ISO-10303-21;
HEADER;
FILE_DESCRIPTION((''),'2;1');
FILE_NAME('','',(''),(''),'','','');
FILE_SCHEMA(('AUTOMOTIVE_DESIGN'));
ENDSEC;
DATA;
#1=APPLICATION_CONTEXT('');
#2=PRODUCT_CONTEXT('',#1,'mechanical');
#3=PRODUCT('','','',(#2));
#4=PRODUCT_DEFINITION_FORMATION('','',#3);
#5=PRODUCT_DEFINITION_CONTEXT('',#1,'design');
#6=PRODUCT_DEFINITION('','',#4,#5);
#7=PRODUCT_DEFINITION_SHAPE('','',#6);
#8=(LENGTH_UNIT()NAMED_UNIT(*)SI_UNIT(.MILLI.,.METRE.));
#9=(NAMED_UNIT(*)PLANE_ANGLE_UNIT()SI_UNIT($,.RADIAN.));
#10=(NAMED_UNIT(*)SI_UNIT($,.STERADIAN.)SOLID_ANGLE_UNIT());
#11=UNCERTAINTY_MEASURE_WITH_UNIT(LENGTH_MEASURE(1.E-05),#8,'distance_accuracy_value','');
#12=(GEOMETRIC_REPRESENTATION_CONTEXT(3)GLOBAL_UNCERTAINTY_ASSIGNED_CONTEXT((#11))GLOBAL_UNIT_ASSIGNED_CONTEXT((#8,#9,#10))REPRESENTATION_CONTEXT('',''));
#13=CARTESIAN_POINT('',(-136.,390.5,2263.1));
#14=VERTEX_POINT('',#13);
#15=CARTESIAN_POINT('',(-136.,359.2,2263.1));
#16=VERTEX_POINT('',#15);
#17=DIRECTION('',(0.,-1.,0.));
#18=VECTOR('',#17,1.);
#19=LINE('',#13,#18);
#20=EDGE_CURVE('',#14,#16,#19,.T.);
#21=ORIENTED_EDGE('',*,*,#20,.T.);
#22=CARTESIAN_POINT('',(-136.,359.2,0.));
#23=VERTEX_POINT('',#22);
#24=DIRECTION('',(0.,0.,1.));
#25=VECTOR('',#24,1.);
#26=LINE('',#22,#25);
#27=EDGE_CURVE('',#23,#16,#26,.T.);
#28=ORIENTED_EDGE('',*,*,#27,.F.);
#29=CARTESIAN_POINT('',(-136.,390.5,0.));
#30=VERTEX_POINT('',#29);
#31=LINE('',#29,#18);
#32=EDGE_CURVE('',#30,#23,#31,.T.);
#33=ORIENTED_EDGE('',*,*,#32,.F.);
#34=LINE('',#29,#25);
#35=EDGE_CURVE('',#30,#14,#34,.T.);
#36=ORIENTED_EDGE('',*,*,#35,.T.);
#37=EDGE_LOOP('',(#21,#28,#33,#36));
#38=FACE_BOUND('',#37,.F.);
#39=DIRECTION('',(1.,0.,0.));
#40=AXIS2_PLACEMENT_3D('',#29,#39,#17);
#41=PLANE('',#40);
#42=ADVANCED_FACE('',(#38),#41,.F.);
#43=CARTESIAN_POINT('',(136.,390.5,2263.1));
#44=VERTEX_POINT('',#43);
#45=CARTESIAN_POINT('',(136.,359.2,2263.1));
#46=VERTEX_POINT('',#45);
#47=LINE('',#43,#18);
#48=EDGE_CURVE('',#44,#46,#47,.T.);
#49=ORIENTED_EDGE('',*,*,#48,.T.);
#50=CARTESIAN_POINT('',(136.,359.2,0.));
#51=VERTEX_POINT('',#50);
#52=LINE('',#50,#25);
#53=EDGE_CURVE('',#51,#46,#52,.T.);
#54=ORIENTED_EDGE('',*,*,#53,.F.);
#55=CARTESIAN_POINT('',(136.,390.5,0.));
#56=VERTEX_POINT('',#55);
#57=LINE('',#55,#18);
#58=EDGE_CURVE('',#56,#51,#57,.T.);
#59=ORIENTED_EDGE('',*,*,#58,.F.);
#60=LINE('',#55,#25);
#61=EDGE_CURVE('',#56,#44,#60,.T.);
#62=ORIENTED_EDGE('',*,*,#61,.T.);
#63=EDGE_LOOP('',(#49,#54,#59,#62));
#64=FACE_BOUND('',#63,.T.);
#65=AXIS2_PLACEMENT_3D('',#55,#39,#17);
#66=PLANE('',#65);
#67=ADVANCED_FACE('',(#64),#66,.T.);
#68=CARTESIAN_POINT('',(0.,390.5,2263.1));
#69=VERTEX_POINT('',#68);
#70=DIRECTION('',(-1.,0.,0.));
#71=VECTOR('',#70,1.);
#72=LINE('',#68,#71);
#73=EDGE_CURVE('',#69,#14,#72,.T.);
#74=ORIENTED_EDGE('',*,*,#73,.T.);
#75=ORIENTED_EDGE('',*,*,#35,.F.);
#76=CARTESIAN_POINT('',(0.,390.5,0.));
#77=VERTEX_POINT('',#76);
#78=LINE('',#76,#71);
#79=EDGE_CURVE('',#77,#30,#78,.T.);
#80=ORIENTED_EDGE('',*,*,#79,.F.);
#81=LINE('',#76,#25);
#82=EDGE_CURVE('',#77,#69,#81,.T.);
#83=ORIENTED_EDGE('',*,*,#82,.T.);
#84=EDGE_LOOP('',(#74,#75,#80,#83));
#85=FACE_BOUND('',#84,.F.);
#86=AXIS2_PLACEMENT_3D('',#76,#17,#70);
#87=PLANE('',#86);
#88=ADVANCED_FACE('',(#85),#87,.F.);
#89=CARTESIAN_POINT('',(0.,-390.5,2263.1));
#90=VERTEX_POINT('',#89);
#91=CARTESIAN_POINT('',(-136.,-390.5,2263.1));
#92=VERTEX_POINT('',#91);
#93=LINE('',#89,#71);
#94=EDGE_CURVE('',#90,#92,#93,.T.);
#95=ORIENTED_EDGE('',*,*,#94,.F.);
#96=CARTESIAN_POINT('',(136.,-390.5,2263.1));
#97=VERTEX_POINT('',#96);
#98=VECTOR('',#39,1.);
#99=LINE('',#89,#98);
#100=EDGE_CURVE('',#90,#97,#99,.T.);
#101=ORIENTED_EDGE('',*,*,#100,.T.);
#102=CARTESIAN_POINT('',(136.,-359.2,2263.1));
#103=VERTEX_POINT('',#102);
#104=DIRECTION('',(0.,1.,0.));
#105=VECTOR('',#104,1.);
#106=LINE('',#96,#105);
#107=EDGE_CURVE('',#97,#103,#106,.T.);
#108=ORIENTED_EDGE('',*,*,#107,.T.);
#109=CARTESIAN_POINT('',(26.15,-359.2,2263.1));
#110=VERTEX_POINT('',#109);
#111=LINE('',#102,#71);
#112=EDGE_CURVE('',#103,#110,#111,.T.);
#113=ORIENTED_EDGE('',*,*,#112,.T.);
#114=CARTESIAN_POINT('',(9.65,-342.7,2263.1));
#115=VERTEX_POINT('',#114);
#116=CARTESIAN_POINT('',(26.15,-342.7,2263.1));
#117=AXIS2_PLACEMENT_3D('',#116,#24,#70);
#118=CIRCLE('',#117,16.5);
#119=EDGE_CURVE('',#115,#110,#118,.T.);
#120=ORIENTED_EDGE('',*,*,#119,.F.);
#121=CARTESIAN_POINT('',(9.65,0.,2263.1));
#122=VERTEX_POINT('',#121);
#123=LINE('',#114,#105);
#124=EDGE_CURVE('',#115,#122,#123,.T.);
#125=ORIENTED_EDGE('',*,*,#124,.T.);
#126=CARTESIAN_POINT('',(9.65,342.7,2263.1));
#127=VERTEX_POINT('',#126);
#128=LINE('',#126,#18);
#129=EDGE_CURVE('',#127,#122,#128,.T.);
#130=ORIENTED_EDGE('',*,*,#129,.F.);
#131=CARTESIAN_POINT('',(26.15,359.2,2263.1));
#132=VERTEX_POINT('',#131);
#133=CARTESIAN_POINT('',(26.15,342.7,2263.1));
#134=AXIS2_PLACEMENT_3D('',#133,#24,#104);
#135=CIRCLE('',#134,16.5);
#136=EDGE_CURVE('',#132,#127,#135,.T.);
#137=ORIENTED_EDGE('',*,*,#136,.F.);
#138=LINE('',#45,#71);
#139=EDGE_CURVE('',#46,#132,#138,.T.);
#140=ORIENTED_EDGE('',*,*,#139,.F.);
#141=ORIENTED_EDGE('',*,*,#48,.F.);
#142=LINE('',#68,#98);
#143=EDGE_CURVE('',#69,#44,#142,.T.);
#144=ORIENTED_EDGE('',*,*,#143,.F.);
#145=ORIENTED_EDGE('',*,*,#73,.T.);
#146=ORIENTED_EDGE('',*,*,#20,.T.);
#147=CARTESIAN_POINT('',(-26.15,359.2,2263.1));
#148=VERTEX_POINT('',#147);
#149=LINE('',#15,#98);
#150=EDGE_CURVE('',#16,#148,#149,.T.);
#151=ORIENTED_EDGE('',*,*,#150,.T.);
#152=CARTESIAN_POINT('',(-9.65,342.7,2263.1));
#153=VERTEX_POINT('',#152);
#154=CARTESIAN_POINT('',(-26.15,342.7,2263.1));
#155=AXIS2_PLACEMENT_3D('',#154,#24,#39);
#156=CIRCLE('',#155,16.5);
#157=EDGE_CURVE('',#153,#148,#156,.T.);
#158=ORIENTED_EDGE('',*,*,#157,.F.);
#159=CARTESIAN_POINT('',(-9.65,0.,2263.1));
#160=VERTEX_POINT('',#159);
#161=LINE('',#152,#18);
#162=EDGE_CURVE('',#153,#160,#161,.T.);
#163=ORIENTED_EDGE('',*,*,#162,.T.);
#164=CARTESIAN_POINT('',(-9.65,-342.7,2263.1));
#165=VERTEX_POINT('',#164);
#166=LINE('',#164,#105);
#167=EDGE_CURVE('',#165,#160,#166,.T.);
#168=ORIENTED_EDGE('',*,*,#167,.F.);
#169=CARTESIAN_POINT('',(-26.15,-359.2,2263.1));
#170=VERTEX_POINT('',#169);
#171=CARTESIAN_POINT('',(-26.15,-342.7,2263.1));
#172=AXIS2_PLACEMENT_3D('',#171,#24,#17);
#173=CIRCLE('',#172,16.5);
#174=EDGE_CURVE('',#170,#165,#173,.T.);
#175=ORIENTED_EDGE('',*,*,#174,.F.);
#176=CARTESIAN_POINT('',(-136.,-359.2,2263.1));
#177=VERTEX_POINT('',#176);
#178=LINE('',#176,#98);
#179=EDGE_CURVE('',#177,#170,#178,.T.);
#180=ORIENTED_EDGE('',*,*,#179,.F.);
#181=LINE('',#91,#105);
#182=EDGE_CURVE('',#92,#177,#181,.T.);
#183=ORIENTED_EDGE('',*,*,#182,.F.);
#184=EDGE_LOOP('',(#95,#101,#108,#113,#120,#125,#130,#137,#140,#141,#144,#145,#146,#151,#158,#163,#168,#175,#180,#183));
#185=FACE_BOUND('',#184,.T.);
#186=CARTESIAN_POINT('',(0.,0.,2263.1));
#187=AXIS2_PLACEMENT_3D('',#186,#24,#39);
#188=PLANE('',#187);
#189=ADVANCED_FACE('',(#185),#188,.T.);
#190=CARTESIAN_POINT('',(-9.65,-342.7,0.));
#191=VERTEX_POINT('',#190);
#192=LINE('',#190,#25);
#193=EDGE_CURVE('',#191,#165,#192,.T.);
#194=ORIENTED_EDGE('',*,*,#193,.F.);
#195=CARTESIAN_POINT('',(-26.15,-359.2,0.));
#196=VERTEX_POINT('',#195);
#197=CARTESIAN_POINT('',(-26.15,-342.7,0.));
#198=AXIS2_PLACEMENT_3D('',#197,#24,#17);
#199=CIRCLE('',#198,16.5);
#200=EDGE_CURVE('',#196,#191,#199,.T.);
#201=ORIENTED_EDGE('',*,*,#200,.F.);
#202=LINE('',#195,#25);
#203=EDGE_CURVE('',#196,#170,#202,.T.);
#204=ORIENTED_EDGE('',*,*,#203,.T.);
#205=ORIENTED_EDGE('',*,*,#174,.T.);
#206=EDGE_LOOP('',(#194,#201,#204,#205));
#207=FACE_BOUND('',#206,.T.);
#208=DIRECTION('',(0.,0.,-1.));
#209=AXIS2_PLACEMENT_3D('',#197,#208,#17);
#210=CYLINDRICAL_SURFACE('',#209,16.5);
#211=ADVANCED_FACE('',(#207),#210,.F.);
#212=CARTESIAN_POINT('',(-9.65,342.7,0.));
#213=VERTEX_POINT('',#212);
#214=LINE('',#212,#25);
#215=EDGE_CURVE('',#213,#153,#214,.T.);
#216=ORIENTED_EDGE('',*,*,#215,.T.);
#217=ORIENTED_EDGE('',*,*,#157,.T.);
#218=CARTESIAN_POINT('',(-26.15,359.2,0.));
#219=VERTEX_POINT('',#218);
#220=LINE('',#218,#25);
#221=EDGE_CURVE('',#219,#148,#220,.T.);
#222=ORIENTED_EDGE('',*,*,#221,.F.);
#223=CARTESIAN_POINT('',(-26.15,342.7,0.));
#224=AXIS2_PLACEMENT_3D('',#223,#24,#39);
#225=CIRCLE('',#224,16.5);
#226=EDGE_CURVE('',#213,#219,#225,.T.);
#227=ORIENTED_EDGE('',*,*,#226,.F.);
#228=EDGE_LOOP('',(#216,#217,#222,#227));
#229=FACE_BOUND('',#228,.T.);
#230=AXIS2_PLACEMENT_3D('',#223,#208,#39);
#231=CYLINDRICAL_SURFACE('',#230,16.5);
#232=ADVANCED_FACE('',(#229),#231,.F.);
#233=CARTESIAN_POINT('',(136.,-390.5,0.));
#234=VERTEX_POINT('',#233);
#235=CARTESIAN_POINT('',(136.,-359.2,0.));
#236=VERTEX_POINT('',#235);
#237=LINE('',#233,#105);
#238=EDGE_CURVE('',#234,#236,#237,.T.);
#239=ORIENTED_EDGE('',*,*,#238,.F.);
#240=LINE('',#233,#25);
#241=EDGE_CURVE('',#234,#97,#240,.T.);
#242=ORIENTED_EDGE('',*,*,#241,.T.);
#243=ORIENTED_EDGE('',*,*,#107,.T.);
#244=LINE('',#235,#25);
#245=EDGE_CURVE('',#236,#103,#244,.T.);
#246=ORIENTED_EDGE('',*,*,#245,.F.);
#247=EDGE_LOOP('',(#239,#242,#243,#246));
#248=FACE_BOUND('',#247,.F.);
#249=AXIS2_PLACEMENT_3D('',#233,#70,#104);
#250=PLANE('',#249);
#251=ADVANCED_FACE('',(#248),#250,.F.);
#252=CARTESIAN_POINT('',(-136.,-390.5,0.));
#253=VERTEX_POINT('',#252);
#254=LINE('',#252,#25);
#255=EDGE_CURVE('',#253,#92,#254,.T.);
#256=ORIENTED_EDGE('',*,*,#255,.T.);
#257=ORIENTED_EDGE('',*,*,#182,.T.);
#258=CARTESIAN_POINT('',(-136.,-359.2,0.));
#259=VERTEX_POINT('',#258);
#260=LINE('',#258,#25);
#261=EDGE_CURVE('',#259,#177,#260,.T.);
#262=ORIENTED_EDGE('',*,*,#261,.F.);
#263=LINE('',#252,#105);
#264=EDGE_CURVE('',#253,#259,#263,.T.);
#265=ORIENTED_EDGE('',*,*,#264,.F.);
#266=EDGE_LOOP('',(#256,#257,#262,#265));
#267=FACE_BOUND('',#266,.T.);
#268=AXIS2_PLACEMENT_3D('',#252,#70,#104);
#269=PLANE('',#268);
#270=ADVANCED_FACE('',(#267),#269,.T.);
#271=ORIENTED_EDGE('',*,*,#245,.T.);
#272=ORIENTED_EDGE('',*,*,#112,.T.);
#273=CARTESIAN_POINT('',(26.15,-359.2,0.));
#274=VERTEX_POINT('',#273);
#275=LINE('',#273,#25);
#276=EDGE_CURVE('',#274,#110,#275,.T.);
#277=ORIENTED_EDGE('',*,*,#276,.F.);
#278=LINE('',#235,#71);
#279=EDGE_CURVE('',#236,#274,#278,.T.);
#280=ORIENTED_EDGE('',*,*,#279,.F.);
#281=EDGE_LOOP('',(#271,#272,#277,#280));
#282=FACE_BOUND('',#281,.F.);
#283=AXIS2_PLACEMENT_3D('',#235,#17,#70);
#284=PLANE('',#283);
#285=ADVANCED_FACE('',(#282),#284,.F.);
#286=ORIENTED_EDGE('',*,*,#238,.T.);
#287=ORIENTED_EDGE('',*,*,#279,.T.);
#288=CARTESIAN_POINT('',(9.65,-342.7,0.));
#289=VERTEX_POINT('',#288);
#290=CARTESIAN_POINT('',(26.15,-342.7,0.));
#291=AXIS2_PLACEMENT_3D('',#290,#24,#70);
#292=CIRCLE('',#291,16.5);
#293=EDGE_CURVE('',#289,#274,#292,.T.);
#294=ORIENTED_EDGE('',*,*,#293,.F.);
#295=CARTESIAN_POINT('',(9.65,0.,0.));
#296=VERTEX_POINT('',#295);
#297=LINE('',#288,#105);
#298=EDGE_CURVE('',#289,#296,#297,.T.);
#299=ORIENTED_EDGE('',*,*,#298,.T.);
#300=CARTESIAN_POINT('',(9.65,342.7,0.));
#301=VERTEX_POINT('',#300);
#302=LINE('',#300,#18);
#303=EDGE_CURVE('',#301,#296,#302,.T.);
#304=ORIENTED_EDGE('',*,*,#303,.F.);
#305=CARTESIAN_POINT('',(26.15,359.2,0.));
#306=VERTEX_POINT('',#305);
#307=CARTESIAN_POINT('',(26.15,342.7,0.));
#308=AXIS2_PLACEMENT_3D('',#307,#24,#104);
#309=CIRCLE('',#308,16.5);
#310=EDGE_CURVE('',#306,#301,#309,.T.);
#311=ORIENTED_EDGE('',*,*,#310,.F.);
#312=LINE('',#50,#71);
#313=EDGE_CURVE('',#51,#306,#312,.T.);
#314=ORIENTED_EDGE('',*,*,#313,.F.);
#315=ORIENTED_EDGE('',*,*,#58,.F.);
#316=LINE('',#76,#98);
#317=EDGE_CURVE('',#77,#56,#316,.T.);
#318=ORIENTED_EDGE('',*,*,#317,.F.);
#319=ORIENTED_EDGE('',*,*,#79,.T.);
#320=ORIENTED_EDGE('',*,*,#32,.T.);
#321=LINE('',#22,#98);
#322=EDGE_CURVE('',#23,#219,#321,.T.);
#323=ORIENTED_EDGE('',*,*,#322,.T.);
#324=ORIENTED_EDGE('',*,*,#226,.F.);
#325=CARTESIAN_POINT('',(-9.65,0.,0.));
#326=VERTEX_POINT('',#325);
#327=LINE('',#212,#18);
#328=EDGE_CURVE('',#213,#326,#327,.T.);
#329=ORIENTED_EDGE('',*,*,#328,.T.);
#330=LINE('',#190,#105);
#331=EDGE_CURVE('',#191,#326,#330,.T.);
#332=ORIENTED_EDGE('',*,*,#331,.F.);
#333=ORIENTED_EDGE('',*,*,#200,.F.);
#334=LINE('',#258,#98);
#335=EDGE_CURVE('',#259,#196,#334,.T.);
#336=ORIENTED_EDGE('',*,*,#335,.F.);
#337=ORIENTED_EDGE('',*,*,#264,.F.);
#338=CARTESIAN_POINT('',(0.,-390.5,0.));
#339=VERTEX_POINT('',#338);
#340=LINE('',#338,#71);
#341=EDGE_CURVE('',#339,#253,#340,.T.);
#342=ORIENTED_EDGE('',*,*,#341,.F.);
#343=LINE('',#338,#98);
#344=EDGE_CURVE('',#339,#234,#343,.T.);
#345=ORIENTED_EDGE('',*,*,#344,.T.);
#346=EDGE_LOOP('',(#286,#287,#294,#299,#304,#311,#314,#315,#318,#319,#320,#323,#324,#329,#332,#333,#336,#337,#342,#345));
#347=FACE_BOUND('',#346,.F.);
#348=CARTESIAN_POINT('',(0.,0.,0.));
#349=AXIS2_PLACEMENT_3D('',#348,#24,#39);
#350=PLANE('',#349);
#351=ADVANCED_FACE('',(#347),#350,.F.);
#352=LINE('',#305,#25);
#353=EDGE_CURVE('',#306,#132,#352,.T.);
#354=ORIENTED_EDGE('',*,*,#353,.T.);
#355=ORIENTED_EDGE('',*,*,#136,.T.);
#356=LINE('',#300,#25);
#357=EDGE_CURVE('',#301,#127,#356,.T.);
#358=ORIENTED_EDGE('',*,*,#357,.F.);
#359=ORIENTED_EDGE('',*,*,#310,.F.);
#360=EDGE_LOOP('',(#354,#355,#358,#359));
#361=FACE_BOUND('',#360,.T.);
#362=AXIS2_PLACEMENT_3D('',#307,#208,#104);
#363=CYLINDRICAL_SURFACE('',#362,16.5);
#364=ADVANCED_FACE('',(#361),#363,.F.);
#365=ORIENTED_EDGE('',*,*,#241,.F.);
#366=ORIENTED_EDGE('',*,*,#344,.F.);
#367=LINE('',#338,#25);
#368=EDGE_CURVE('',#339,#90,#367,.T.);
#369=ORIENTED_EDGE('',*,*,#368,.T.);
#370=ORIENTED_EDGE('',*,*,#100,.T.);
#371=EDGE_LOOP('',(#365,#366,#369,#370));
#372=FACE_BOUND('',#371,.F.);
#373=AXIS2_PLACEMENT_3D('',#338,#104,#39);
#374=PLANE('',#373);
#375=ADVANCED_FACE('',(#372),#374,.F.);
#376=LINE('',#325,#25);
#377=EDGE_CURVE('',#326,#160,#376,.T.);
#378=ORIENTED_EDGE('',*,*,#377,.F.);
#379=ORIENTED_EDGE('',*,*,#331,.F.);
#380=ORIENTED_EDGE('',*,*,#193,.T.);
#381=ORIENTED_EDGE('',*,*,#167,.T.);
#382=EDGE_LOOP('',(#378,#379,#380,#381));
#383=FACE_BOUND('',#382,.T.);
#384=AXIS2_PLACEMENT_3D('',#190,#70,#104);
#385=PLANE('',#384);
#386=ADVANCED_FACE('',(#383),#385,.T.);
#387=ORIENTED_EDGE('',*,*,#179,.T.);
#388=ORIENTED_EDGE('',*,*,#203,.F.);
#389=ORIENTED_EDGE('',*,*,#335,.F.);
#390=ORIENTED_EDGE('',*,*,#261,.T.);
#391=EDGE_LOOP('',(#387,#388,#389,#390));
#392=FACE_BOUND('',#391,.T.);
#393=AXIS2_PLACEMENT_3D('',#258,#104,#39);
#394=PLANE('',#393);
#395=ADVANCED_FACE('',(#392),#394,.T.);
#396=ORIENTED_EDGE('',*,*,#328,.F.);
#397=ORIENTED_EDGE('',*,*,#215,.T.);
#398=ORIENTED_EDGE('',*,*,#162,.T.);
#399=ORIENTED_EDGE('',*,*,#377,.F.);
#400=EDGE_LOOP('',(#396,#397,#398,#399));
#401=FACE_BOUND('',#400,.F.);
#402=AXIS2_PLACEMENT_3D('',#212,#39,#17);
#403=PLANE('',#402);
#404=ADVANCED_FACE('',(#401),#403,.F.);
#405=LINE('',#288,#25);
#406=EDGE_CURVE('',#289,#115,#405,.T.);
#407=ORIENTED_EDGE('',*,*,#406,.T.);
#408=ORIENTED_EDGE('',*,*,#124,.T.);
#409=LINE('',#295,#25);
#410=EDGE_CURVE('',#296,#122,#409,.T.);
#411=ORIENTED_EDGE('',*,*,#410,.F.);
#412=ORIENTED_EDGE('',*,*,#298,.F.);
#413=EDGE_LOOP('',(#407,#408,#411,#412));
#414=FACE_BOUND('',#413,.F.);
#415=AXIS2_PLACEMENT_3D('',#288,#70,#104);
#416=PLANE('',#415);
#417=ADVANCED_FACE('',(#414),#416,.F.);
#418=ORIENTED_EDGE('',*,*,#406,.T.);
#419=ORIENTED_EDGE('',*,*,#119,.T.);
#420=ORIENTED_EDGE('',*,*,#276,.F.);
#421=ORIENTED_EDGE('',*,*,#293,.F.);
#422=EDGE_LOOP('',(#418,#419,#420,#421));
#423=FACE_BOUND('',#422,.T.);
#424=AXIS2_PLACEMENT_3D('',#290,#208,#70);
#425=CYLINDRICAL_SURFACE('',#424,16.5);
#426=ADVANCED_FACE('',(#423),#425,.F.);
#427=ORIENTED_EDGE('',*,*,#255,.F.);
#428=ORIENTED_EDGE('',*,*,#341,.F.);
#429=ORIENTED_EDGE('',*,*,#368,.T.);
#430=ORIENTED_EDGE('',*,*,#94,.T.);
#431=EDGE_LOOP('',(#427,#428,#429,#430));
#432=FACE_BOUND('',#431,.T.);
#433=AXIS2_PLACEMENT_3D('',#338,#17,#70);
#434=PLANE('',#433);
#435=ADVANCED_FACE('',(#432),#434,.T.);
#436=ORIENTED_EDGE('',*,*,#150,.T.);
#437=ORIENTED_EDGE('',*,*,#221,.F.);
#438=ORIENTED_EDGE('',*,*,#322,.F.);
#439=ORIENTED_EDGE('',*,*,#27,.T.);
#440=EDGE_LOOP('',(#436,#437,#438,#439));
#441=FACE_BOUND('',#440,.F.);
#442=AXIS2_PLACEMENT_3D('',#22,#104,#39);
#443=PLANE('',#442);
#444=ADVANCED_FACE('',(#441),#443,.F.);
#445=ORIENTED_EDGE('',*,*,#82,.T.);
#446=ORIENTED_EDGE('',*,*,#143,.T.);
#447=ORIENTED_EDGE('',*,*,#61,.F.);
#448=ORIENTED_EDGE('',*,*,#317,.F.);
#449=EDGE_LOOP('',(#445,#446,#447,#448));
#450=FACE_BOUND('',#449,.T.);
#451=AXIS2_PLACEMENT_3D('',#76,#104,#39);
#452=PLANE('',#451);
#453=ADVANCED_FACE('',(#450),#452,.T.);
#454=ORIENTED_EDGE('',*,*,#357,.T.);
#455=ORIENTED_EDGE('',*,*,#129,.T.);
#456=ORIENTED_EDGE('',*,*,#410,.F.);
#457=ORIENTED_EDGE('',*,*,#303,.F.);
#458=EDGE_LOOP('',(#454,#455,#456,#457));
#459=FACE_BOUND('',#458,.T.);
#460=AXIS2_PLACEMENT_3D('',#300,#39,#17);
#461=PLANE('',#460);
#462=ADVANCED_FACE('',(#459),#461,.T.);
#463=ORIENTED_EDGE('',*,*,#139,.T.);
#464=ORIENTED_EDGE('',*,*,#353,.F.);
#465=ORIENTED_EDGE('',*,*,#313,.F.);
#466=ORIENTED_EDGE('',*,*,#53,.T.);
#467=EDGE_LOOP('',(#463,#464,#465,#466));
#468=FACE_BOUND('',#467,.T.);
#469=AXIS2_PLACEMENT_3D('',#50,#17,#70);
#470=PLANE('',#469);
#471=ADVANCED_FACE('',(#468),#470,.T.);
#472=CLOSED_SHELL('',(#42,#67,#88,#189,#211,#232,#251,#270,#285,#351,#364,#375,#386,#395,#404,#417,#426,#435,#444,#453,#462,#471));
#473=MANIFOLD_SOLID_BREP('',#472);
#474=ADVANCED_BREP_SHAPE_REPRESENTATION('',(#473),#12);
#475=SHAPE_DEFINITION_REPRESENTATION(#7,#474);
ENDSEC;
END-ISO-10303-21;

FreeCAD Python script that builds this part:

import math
import FreeCAD as App
import Part
import Sketcher
Q = App.Units.Quantity

doc = App.newDocument("Part")
body = doc.addObject("PartDesign::Body", "Body")

# Sketch on XY plane
sketch1 = body.newObject("Sketcher::SketchObject", "Sketch")
sketch1.AttachmentSupport = (doc.getObject("XY_Plane"), [""])
sketch1.MapMode = "FlatFace"
sketch1.addGeometry([
    Part.LineSegment(App.Vector(-136, -359, 0), App.Vector(-136, -390, 0)),  # 0
    Part.LineSegment(App.Vector(-136, -390, 0), App.Vector(136, -390, 0)),  # 1
    Part.LineSegment(App.Vector(136, -390, 0), App.Vector(136, -359, 0)),  # 2
    Part.LineSegment(App.Vector(136, -359, 0), App.Vector(26, -359, 0)),  # 3
    Part.ArcOfCircle(Part.Circle(App.Vector(26, -343, 0), App.Vector(0, 0, 1), 16), math.radians(180), math.radians(270)),  # 4
    Part.LineSegment(App.Vector(10, -343, 0), App.Vector(10, 343, 0)),  # 5
    Part.ArcOfCircle(Part.Circle(App.Vector(26, 343, 0), App.Vector(0, 0, 1), 16), math.radians(90), math.radians(180)),  # 6
    Part.LineSegment(App.Vector(26, 359, 0), App.Vector(136, 359, 0)),  # 7
    Part.LineSegment(App.Vector(136, 359, 0), App.Vector(136, 390, 0)),  # 8
    Part.LineSegment(App.Vector(136, 390, 0), App.Vector(-136, 390, 0)),  # 9
    Part.LineSegment(App.Vector(-136, 390, 0), App.Vector(-136, 359, 0)),  # 10
    Part.LineSegment(App.Vector(-136, 359, 0), App.Vector(-26, 359, 0)),  # 11
    Part.ArcOfCircle(Part.Circle(App.Vector(-26, 343, 0), App.Vector(0, 0, 1), 16), math.radians(0), math.radians(90)),  # 12
    Part.LineSegment(App.Vector(-10, 343, 0), App.Vector(-10, -343, 0)),  # 13
    Part.ArcOfCircle(Part.Circle(App.Vector(-26, -343, 0), App.Vector(0, 0, 1), 16), math.radians(-90), math.radians(0)),  # 14
    Part.LineSegment(App.Vector(-26, -359, 0), App.Vector(-136, -359, 0)),  # 15
], False)
sketch1.addConstraint([
    Sketcher.Constraint("Coincident", 0, 2, 1, 1),
    Sketcher.Constraint("Coincident", 1, 2, 2, 1),
    Sketcher.Constraint("Coincident", 2, 2, 3, 1),
    Sketcher.Constraint("Tangent", 3, 2, 4, 2),
    Sketcher.Constraint("Tangent", 4, 1, 5, 1),
    Sketcher.Constraint("Tangent", 5, 2, 6, 2),
    Sketcher.Constraint("Tangent", 6, 1, 7, 1),
    Sketcher.Constraint("Coincident", 7, 2, 8, 1),
    Sketcher.Constraint("Coincident", 8, 2, 9, 1),
    Sketcher.Constraint("Coincident", 9, 2, 10, 1),
    Sketcher.Constraint("Coincident", 10, 2, 11, 1),
    Sketcher.Constraint("Tangent", 11, 2, 12, 2),
    Sketcher.Constraint("Tangent", 12, 1, 13, 1),
    Sketcher.Constraint("Tangent", 13, 2, 14, 2),
    Sketcher.Constraint("Tangent", 14, 1, 15, 1),
    Sketcher.Constraint("Coincident", 15, 2, 0, 1),
    Sketcher.Constraint("Vertical", 0),
    Sketcher.Constraint("Horizontal", 1),
    Sketcher.Constraint("Vertical", 2),
    Sketcher.Constraint("Horizontal", 3),
    Sketcher.Constraint("Vertical", 5),
    Sketcher.Constraint("Horizontal", 7),
    Sketcher.Constraint("Vertical", 8),
    Sketcher.Constraint("Horizontal", 9),
    Sketcher.Constraint("Vertical", 10),
    Sketcher.Constraint("Horizontal", 11),
    Sketcher.Constraint("Vertical", 13),
    Sketcher.Constraint("Horizontal", 15),
    Sketcher.Constraint("Equal", 4, 6),
    Sketcher.Constraint("Equal", 6, 12),
    Sketcher.Constraint("Equal", 12, 14),
    Sketcher.Constraint("Symmetric", 4, 3, 12, 3, -1, 1),
    Sketcher.Constraint("Symmetric", 0, 2, 8, 2, -1, 1),
    Sketcher.Constraint("Symmetric", 7, 2, 10, 2, -2),
    Sketcher.Constraint("Symmetric", 2, 2, 15, 2, -2),
    Sketcher.Constraint("Radius", 4, Q("16.5 mm")),
    Sketcher.Constraint("DistanceY", 0, 2, 0, 1, Q("31.3 mm")),
    Sketcher.Constraint("DistanceX", 0, 2, -1, 1, Q("136 mm")),
    Sketcher.Constraint("DistanceY", 0, 2, -1, 1, Q("390.5 mm")),
    Sketcher.Constraint("DistanceX", -1, 1, 4, 1, Q("9.65 mm")),
])
pad1 = body.newObject("PartDesign::Pad", "Pad")
pad1.Profile = sketch1
pad1.Length = 2263.1

doc.recompute()
